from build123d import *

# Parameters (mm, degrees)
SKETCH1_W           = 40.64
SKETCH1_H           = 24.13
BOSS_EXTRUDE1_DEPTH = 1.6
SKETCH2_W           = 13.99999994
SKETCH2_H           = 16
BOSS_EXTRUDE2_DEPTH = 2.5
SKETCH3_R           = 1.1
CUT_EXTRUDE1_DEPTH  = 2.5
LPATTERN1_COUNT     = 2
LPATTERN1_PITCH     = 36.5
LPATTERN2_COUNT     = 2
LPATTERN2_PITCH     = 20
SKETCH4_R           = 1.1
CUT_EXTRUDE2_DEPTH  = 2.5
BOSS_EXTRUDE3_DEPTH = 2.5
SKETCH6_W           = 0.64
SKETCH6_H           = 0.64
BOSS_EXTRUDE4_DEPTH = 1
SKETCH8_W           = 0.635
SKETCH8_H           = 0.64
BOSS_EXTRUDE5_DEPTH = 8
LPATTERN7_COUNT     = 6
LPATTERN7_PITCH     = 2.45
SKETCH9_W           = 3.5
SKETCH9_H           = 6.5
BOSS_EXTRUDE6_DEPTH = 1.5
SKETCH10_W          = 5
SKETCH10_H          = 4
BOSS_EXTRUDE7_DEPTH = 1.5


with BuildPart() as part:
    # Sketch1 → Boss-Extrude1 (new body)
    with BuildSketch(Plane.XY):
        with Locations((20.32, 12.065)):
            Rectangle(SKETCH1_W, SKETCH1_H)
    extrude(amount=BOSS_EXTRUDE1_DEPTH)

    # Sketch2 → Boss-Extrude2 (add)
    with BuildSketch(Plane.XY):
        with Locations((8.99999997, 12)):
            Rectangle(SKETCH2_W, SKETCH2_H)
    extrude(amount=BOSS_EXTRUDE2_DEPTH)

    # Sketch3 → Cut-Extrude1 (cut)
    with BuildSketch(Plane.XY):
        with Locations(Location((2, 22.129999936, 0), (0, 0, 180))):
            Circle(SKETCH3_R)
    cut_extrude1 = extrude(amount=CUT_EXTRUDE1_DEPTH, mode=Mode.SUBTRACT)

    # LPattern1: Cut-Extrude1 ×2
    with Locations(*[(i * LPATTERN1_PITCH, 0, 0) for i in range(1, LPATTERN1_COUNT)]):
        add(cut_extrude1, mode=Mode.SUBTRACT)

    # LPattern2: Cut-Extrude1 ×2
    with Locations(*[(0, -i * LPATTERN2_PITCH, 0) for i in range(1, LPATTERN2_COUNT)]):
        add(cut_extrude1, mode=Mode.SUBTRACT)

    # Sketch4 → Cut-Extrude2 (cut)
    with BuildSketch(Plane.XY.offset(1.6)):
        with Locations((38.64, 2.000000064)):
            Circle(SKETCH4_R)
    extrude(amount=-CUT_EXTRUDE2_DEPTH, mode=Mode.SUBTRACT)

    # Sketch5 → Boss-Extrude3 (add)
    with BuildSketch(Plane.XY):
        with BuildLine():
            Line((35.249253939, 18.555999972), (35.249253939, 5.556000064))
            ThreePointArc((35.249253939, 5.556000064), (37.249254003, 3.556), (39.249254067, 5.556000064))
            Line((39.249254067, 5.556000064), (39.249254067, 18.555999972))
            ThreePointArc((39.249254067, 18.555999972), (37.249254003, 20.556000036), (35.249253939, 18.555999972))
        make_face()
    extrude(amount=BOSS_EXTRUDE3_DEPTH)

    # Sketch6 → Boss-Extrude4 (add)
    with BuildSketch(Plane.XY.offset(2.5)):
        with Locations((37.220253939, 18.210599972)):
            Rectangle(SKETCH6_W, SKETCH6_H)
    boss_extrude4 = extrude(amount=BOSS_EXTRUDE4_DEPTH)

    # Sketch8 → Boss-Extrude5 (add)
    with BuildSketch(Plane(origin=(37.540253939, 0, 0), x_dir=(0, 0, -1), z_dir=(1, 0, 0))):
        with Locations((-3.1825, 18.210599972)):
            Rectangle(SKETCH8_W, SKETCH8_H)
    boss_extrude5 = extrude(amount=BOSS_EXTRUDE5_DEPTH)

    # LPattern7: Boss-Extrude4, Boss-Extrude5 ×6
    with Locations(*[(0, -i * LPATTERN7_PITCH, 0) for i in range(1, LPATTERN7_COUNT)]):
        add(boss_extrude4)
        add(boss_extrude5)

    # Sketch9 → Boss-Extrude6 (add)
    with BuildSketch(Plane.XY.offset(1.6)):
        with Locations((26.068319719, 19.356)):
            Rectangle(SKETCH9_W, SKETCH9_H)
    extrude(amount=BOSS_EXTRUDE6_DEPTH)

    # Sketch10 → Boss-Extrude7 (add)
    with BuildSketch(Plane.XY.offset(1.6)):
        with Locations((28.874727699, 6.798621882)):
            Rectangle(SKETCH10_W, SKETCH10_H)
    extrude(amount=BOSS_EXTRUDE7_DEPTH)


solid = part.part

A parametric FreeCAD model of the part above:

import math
import FreeCAD as App
import Part
import Sketcher

V = App.Vector


def add_polygon(sketch, points):
    """Adds a closed chain of lines whose ends are joined by coincident constraints."""
    first, n = sketch.GeometryCount, len(points)
    for a, b in zip(points, points[1:] + points[:1]):
        sketch.addGeometry(Part.LineSegment(App.Vector(*a, 0), App.Vector(*b, 0)), False)
    for i in range(n):
        sketch.addConstraint(Sketcher.Constraint("Coincident", first + i, 2, first + (i + 1) % n, 1))

doc = App.newDocument("Part")
params = doc.addObject("Spreadsheet::Sheet", "Params")
for row, (alias, value) in enumerate([
    ("sketch1_width", "40.64 mm"),
    ("sketch1_height", "24.13 mm"),
    ("pad1_length", "1.6 mm"),
    ("sketch2_width", "14 mm"),
    ("sketch2_height", "16 mm"),
    ("pad2_length", "2.5 mm"),
    ("sketch3_diameter", "2.2 mm"),
    ("pocket1_length", "2.5 mm"),
    ("linearpattern_pitch", "36.5 mm"),
    ("linearpattern2_pitch", "20 mm"),
    ("sketch4_diameter", "2.2 mm"),
    ("pocket2_length", "2.5 mm"),
    ("sketch5_radius", "2 mm"),
    ("sketch5_height", "13 mm"),
    ("pad3_length", "2.5 mm"),
    ("sketch6_width", "0.64 mm"),
    ("pad4_length", "1 mm"),
    ("sketch7_width", "0.64 mm"),
    ("pad5_length", "8 mm"),
    ("linearpattern3_pitch", "2.45 mm"),
    ("sketch8_width", "3.5 mm"),
    ("sketch8_height", "6.5 mm"),
    ("pad6_length", "1.5 mm"),
    ("sketch9_width", "5 mm"),
    ("sketch9_height", "4 mm"),
    ("pad7_length", "1.5 mm"),
], start=1):
    params.set(f"A{row}", alias)
    params.set(f"B{row}", "=" + value)
    params.setAlias(f"B{row}", alias)

body = doc.addObject("PartDesign::Body", "Body")

# Sketch on XY plane
sketch1 = body.newObject("Sketcher::SketchObject", "Sketch")
sketch1.AttachmentSupport = (doc.getObject("XY_Plane"), [""])
sketch1.MapMode = "FlatFace"
add_polygon(sketch1, [(0, 24), (0, 0), (41, 0), (41, 24)])  # lines 0-3
sketch1.addConstraint(Sketcher.Constraint("Vertical", 0))
sketch1.addConstraint(Sketcher.Constraint("Horizontal", 1))
sketch1.addConstraint(Sketcher.Constraint("Vertical", 2))
sketch1.addConstraint(Sketcher.Constraint("Horizontal", 3))
sketch1.addConstraint(Sketcher.Constraint("Coincident", 0, 2, -1, 1))
sketch1.addConstraint(Sketcher.Constraint("DistanceX", 1, 1, 1, 2, 40.64))
sketch1.addConstraint(Sketcher.Constraint("DistanceY", 0, 2, 0, 1, 24.13))
sketch1.setExpression("Constraints[9]", "Params.sketch1_width")
sketch1.setExpression("Constraints[10]", "Params.sketch1_height")
pad1 = body.newObject("PartDesign::Pad", "Pad")
pad1.Profile = sketch1
pad1.setExpression("Length", "Params.pad1_length")

# Sketch on XY plane
sketch2 = body.newObject("Sketcher::SketchObject", "Sketch001")
sketch2.AttachmentSupport = (doc.getObject("XY_Plane"), [""])
sketch2.MapMode = "FlatFace"
add_polygon(sketch2, [(2, 20), (2, 4), (16, 4), (16, 20)])  # lines 0-3
sketch2.addConstraint(Sketcher.Constraint("Vertical", 0))
sketch2.addConstraint(Sketcher.Constraint("Horizontal", 1))
sketch2.addConstraint(Sketcher.Constraint("Vertical", 2))
sketch2.addConstraint(Sketcher.Constraint("Horizontal", 3))
sketch2.addConstraint(Sketcher.Constraint("DistanceX", 1, 1, 1, 2, 14.0))
sketch2.addConstraint(Sketcher.Constraint("DistanceY", 0, 2, 0, 1, 16.0))
sketch2.addConstraint(Sketcher.Constraint("DistanceX", -1, 1, 0, 2, 2.0))
sketch2.addConstraint(Sketcher.Constraint("DistanceY", -1, 1, 0, 2, 4.0))
sketch2.setExpression("Constraints[8]", "Params.sketch2_width")
sketch2.setExpression("Constraints[9]", "Params.sketch2_height")
pad2 = body.newObject("PartDesign::Pad", "Pad001")
pad2.Profile = sketch2
pad2.setExpression("Length", "Params.pad2_length")

# Sketch on XY plane
sketch3 = body.newObject("Sketcher::SketchObject", "Sketch002")
sketch3.AttachmentSupport = (doc.getObject("XY_Plane"), [""])
sketch3.MapMode = "FlatFace"
sketch3.addGeometry(Part.Circle(V(2, 22.1, 0), V(0, 0, 1), 1.1), False)
sketch3.addConstraint(Sketcher.Constraint("Diameter", 0, 2.2))
sketch3.addConstraint(Sketcher.Constraint("DistanceX", -1, 1, 0, 3, 2.0))
sketch3.addConstraint(Sketcher.Constraint("DistanceY", -1, 1, 0, 3, 22.13))
sketch3.setExpression("Constraints[0]", "Params.sketch3_diameter")
pocket1 = body.newObject("PartDesign::Pocket", "Pocket")
pocket1.Profile = sketch3
pocket1.setExpression("Length", "Params.pocket1_length")
pocket1.Reversed = True
doc.recompute()

linearpattern = body.newObject("PartDesign::LinearPattern", "LinearPattern")
linearpattern.Originals = [pocket1]
linearpattern.Direction = (doc.getObject("X_Axis"), [""])
linearpattern.Mode = "offset"
linearpattern.setExpression("Offset", "Params.linearpattern_pitch")
linearpattern.Occurrences = 2
body.Tip = linearpattern
doc.recompute()

linearpattern2 = body.newObject("PartDesign::LinearPattern", "LinearPattern001")
linearpattern2.Originals = [pocket1]
linearpattern2.Direction = (doc.getObject("Y_Axis"), [""])
linearpattern2.Mode = "offset"
linearpattern2.setExpression("Offset", "Params.linearpattern2_pitch")
linearpattern2.Occurrences = 2
linearpattern2.Reversed = True
body.Tip = linearpattern2

# Sketch on XY plane
sketch4 = body.newObject("Sketcher::SketchObject", "Sketch003")
sketch4.AttachmentSupport = (doc.getObject("XY_Plane"), [""])
sketch4.MapMode = "FlatFace"
sketch4.AttachmentOffset = App.Placement(V(0, 0, 1.6), App.Rotation())
sketch4.addGeometry(Part.Circle(V(38.6, 2, 0), V(0, 0, 1), 1.1), False)
sketch4.addConstraint(Sketcher.Constraint("Diameter", 0, 2.2))
sketch4.addConstraint(Sketcher.Constraint("DistanceY", -1, 1, 0, 3, 2.0))
sketch4.addConstraint(Sketcher.Constraint("DistanceX", -1, 1, 0, 3, 38.64))
sketch4.setExpression("Constraints[0]", "Params.sketch4_diameter")
pocket2 = body.newObject("PartDesign::Pocket", "Pocket001")
pocket2.Profile = sketch4
pocket2.setExpression("Length", "Params.pocket2_length")

# Sketch on XY plane
sketch5 = body.newObject("Sketcher::SketchObject", "Sketch004")
sketch5.AttachmentSupport = (doc.getObject("XY_Plane"), [""])
sketch5.MapMode = "FlatFace"
sketch5.addGeometry(Part.LineSegment(V(35.2, 18.6, 0), V(35.2, 5.6, 0)), False)
sketch5.addGeometry(Part.ArcOfCircle(Part.Circle(V(37.2, 5.6, 0), V(0, 0, 1), 2), math.radians(180), math.radians(360)), False)
sketch5.addGeometry(Part.LineSegment(V(39.2, 5.6, 0), V(39.2, 18.6, 0)), False)
sketch5.addGeometry(Part.ArcOfCircle(Part.Circle(V(37.2, 18.6, 0), V(0, 0, 1), 2), math.radians(0), math.radians(180)), False)
sketch5.addConstraint(Sketcher.Constraint("Tangent", 0, 2, 1, 1))
sketch5.addConstraint(Sketcher.Constraint("Tangent", 1, 2, 2, 1))
sketch5.addConstraint(Sketcher.Constraint("Tangent", 2, 2, 3, 1))
sketch5.addConstraint(Sketcher.Constraint("Tangent", 3, 2, 0, 1))
sketch5.addConstraint(Sketcher.Constraint("Vertical", 0))
sketch5.addConstraint(Sketcher.Constraint("Vertical", 2))
sketch5.addConstraint(Sketcher.Constraint("Radius", 1, 2.0))
sketch5.addConstraint(Sketcher.Constraint("DistanceY", 0, 2, 0, 1, 13.0))
sketch5.addConstraint(Sketcher.Constraint("DistanceY", -1, 1, 1, 3, 5.556))
sketch5.addConstraint(Sketcher.Constraint("DistanceX", -1, 1, 1, 3, 37.249254))
sketch5.setExpression("Constraints[6]", "Params.sketch5_radius")
sketch5.setExpression("Constraints[7]", "Params.sketch5_height")
pad3 = body.newObject("PartDesign::Pad", "Pad002")
pad3.Profile = sketch5
pad3.setExpression("Length", "Params.pad3_length")

# Sketch on XY plane
sketch6 = body.newObject("Sketcher::SketchObject", "Sketch005")
sketch6.AttachmentSupport = (doc.getObject("XY_Plane"), [""])
sketch6.MapMode = "FlatFace"
sketch6.AttachmentOffset = App.Placement(V(0, 0, 2.5), App.Rotation())
add_polygon(sketch6, [(36.9, 18.5), (36.9, 17.9), (37.5, 17.9), (37.5, 18.5)])  # lines 0-3
sketch6.addConstraint(Sketcher.Constraint("Vertical", 0))
sketch6.addConstraint(Sketcher.Constraint("Horizontal", 1))
sketch6.addConstraint(Sketcher.Constraint("Vertical", 2))
sketch6.addConstraint(Sketcher.Constraint("Horizontal", 3))
sketch6.addConstraint(Sketcher.Constraint("Equal", 3, 0))
sketch6.addConstraint(Sketcher.Constraint("DistanceX", 1, 1, 1, 2, 0.64))
sketch6.addConstraint(Sketcher.Constraint("DistanceY", -1, 1, 0, 2, 17.8906))
sketch6.addConstraint(Sketcher.Constraint("DistanceX", -1, 1, 0, 2, 36.900254))
sketch6.setExpression("Constraints[9]", "Params.sketch6_width")
pad4 = body.newObject("PartDesign::Pad", "Pad003")
pad4.Profile = sketch6
pad4.setExpression("Length", "Params.pad4_length")

# Sketch on YZ plane
sketch7 = body.newObject("Sketcher::SketchObject", "Sketch006")
sketch7.AttachmentSupport = (doc.getObject("YZ_Plane"), [""])
sketch7.MapMode = "FlatFace"
sketch7.AttachmentOffset = App.Placement(V(0, 0, 37.540254), App.Rotation())
add_polygon(sketch7, [(18.5, 3.5), (17.9, 3.5), (17.9, 2.9), (18.5, 2.9)])  # lines 0-3
sketch7.addConstraint(Sketcher.Constraint("Horizontal", 0))
sketch7.addConstraint(Sketcher.Constraint("Vertical", 1))
sketch7.addConstraint(Sketcher.Constraint("Horizontal", 2))
sketch7.addConstraint(Sketcher.Constraint("Vertical", 3))
sketch7.addConstraint(Sketcher.Constraint("DistanceX", 0, 2, 0, 1, 0.64))
sketch7.addConstraint(Sketcher.Constraint("DistanceY", -1, 1, 0, 2, 3.5))
sketch7.addConstraint(Sketcher.Constraint("DistanceY", 1, 2, 1, 1, 0.635))
sketch7.addConstraint(Sketcher.Constraint("DistanceX", -1, 1, 0, 2, 17.8906))
sketch7.setExpression("Constraints[8]", "Params.sketch7_width")
pad5 = body.newObject("PartDesign::Pad", "Pad004")
pad5.Profile = sketch7
pad5.setExpression("Length", "Params.pad5_length")
doc.recompute()

linearpattern3 = body.newObject("PartDesign::LinearPattern", "LinearPattern002")
linearpattern3.Originals = [pad4, pad5]
linearpattern3.Direction = (doc.getObject("Y_Axis"), [""])
linearpattern3.Mode = "offset"
linearpattern3.setExpression("Offset", "Params.linearpattern3_pitch")
linearpattern3.Occurrences = 6
linearpattern3.Reversed = True
body.Tip = linearpattern3

# Sketch on XY plane
sketch8 = body.newObject("Sketcher::SketchObject", "Sketch007")
sketch8.AttachmentSupport = (doc.getObject("XY_Plane"), [""])
sketch8.MapMode = "FlatFace"
sketch8.AttachmentOffset = App.Placement(V(0, 0, 1.6), App.Rotation())
add_polygon(sketch8, [(24.3, 22.6), (24.3, 16.1), (27.8, 16.1), (27.8, 22.6)])  # lines 0-3
sketch8.addConstraint(Sketcher.Constraint("Vertical", 0))
sketch8.addConstraint(Sketcher.Constraint("Horizontal", 1))
sketch8.addConstraint(Sketcher.Constraint("Vertical", 2))
sketch8.addConstraint(Sketcher.Constraint("Horizontal", 3))
sketch8.addConstraint(Sketcher.Constraint("DistanceX", 1, 1, 1, 2, 3.5))
sketch8.addConstraint(Sketcher.Constraint("DistanceY", 0, 2, 0, 1, 6.5))
sketch8.addConstraint(Sketcher.Constraint("DistanceY", -1, 1, 0, 2, 16.106))
sketch8.addConstraint(Sketcher.Constraint("DistanceX", -1, 1, 0, 2, 24.31832))
sketch8.setExpression("Constraints[8]", "Params.sketch8_width")
sketch8.setExpression("Constraints[9]", "Params.sketch8_height")
pad6 = body.newObject("PartDesign::Pad", "Pad005")
pad6.Profile = sketch8
pad6.setExpression("Length", "Params.pad6_length")

# Sketch on XY plane
sketch9 = body.newObject("Sketcher::SketchObject", "Sketch008")
sketch9.AttachmentSupport = (doc.getObject("XY_Plane"), [""])
sketch9.MapMode = "FlatFace"
sketch9.AttachmentOffset = App.Placement(V(0, 0, 1.6), App.Rotation())
add_polygon(sketch9, [(26.4, 8.8), (26.4, 4.8), (31.4, 4.8), (31.4, 8.8)])  # lines 0-3
sketch9.addConstraint(Sketcher.Constraint("Vertical", 0))
sketch9.addConstraint(Sketcher.Constraint("Horizontal", 1))
sketch9.addConstraint(Sketcher.Constraint("Vertical", 2))
sketch9.addConstraint(Sketcher.Constraint("Horizontal", 3))
sketch9.addConstraint(Sketcher.Constraint("DistanceX", 1, 1, 1, 2, 5.0))
sketch9.addConstraint(Sketcher.Constraint("DistanceY", 0, 2, 0, 1, 4.0))
sketch9.addConstraint(Sketcher.Constraint("DistanceY", -1, 1, 0, 2, 4.798622))
sketch9.addConstraint(Sketcher.Constraint("DistanceX", -1, 1, 0, 2, 26.374728))
sketch9.setExpression("Constraints[8]", "Params.sketch9_width")
sketch9.setExpression("Constraints[9]", "Params.sketch9_height")
pad7 = body.newObject("PartDesign::Pad", "Pad006")
pad7.Profile = sketch9
pad7.setExpression("Length", "Params.pad7_length")

doc.recompute()
